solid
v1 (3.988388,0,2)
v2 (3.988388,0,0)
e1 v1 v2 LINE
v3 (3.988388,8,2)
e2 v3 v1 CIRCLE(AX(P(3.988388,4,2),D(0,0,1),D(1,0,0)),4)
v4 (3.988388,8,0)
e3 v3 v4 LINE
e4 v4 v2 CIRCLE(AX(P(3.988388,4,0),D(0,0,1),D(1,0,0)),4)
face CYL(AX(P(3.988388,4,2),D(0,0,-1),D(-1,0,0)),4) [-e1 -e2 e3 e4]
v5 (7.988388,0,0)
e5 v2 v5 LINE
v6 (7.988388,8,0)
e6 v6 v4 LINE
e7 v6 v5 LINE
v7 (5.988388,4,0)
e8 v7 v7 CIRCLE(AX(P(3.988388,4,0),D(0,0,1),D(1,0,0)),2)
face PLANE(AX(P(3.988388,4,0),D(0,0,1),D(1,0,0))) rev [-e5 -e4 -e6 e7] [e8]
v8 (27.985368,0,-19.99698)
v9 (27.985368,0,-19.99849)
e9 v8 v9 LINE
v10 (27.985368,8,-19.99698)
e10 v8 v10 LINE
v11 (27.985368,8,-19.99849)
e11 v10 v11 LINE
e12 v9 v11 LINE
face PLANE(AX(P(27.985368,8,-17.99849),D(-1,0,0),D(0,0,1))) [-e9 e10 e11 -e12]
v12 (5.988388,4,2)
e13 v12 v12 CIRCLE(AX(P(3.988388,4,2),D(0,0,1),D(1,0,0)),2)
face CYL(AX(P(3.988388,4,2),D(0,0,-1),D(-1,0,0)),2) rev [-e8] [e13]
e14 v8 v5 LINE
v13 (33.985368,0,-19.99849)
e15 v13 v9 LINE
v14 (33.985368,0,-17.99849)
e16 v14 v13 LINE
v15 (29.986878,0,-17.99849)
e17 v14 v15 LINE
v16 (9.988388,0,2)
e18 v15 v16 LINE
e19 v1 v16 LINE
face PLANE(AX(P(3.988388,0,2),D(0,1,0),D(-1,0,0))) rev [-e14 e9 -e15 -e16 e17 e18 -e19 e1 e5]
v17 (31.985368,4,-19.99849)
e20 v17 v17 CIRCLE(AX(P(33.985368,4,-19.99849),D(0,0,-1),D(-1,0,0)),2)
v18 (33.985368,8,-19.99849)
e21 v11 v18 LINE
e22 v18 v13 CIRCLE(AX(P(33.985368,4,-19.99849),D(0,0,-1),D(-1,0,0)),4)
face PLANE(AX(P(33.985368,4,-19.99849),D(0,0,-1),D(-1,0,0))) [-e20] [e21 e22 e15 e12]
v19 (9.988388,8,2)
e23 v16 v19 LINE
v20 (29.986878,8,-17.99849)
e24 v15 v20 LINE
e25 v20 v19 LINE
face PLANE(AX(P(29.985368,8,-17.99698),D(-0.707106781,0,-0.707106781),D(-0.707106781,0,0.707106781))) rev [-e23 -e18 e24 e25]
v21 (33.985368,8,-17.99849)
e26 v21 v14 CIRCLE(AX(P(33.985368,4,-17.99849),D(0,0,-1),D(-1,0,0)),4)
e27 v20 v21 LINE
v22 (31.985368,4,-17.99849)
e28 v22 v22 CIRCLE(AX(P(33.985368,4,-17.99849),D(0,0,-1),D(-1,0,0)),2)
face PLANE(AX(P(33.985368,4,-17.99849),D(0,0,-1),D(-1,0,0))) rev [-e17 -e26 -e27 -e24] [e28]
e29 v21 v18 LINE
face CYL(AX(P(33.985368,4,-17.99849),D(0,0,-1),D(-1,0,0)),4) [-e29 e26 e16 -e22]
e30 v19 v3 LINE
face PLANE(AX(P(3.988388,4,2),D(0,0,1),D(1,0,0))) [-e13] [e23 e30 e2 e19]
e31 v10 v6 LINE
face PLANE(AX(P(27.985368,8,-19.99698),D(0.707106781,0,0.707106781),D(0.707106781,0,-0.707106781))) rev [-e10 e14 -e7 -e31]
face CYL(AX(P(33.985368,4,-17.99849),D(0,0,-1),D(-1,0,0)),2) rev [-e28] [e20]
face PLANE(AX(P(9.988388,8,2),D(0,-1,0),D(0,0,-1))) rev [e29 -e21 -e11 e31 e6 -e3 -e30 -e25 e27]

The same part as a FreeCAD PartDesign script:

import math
import FreeCAD as App
import Part
import Sketcher


def add_polygon(sketch, points):
    """Adds a closed chain of lines whose ends are joined by coincident constraints."""
    first, n = sketch.GeometryCount, len(points)
    for a, b in zip(points, points[1:] + points[:1]):
        sketch.addGeometry(Part.LineSegment(App.Vector(*a, 0), App.Vector(*b, 0)), False)
    for i in range(n):
        sketch.addConstraint(Sketcher.Constraint("Coincident", first + i, 2, first + (i + 1) % n, 1))

doc = App.newDocument("Part")
body = doc.addObject("PartDesign::Body", "Body")

sketch1 = body.newObject("Sketcher::SketchObject", "Sketch")
sketch1.AttachmentSupport = (doc.getObject("XY_Plane"), [""])
sketch1.MapMode = "FlatFace"
sketch1.addGeometry([
    Part.LineSegment(App.Vector(4, 0, 0), App.Vector(10, 0, 0)),
    Part.LineSegment(App.Vector(10, 0, 0), App.Vector(10, 8, 0)),
    Part.LineSegment(App.Vector(10, 8, 0), App.Vector(4, 8, 0)),
    Part.ArcOfCircle(Part.Circle(App.Vector(4, 4, 0), App.Vector(0, 0, 1), 4), math.radians(90), math.radians(270)),
    Part.Circle(App.Vector(4, 4, 0), App.Vector(0, 0, 1), 2),
], False)
sketch1.addConstraint([
    Sketcher.Constraint("Coincident", 0, 2, 1, 1),
    Sketcher.Constraint("Coincident", 1, 2, 2, 1),
    Sketcher.Constraint("Tangent", 2, 2, 3, 1),
    Sketcher.Constraint("Tangent", 3, 2, 0, 1),
    Sketcher.Constraint("Horizontal", 0),
    Sketcher.Constraint("Vertical", 1),
    Sketcher.Constraint("Horizontal", 2),
    Sketcher.Constraint("Coincident", 4, 3, 3, 3),
    Sketcher.Constraint("PointOnObject", 0, 2, -1),
    Sketcher.Constraint("Diameter", 4, 4.0),
    Sketcher.Constraint("Radius", 3, 4.0),
    Sketcher.Constraint("DistanceX", 0, 1, 0, 2, 6.0),
    Sketcher.Constraint("DistanceX", -1, 1, 3, 3, 3.988388),
])
pad1 = body.newObject("PartDesign::Pad", "Pad")
pad1.Profile = sketch1
pad1.Length = 2

sketch2 = body.newObject("Sketcher::SketchObject", "Sketch001")
sketch2.AttachmentSupport = (doc.getObject("XZ_Plane"), [""])
sketch2.MapMode = "FlatFace"
add_polygon(sketch2, [(10, 2), (8, 0), (10, 0)])
sketch2.addConstraint([
    Sketcher.Constraint("Horizontal", 1),
    Sketcher.Constraint("Vertical", 2),
    Sketcher.Constraint("PointOnObject", 0, 2, -1),
    Sketcher.Constraint("Equal", 1, 2),
    Sketcher.Constraint("DistanceX", 1, 1, 1, 2, 2.0),
    Sketcher.Constraint("DistanceX", -1, 1, 0, 2, 7.988388),
])
pocket1 = body.newObject("PartDesign::Pocket", "Pocket")
pocket1.Profile = sketch2
pocket1.Type = "ThroughAll"

sketch3 = body.newObject("Sketcher::SketchObject", "Sketch002")
sketch3.Placement = App.Placement(App.Vector(3.994194, 0, -3.994194), App.Rotation(App.Vector(-0.707106781, 0, -0.707106781), App.Vector(0, 0.999999999, 0), App.Vector(0.707106781, 0, -0.707106781), "ZXY"))
add_polygon(sketch3, [(-8.5, 8), (-8.5, 0), (-5.6, 0), (-5.6, 8)])
sketch3.addConstraint([
    Sketcher.Constraint("Vertical", 0),
    Sketcher.Constraint("Horizontal", 1),
    Sketcher.Constraint("Vertical", 2),
    Sketcher.Constraint("Horizontal", 3),
    Sketcher.Constraint("PointOnObject", 0, 2, -1),
    Sketcher.Constraint("DistanceY", 0, 2, 0, 1, 8.0),
    Sketcher.Constraint("DistanceX", 1, 1, 1, 2, 2.828427),
    Sketcher.Constraint("DistanceX", 0, 2, -1, 1, 8.477071),
])
pad2 = body.newObject("PartDesign::Pad", "Pad001")
pad2.Profile = sketch3
pad2.Length = 28.28

sketch4 = body.newObject("Sketcher::SketchObject", "Sketch003")
sketch4.AttachmentSupport = (doc.getObject("XZ_Plane"), [""])
sketch4.MapMode = "FlatFace"
sketch4.AttachmentOffset = App.Placement(App.Vector(0, 0, -8), App.Rotation())
add_polygon(sketch4, [(28, -20), (28, -16), (30, -18)])
sketch4.addConstraint([
    Sketcher.Constraint("Vertical", 0),
    Sketcher.Constraint("Perpendicular", 1, 2),
    Sketcher.Constraint("Equal", 1, 2),
    Sketcher.Constraint("DistanceY", 0, 1, 0, 2, 4.0),
    Sketcher.Constraint("DistanceY", 0, 2, -1, 1, 15.99698),
    Sketcher.Constraint("DistanceX", -1, 1, 0, 2, 27.985368),
])
pocket2 = body.newObject("PartDesign::Pocket", "Pocket001")
pocket2.Profile = sketch4
pocket2.Type = "ThroughAll"
pocket2.Reversed = True

sketch5 = body.newObject("Sketcher::SketchObject", "Sketch004")
sketch5.AttachmentSupport = (doc.getObject("XY_Plane"), [""])
sketch5.MapMode = "FlatFace"
sketch5.AttachmentOffset = App.Placement(App.Vector(0, 0, -19.99849), App.Rotation())
sketch5.addGeometry([
    Part.LineSegment(App.Vector(28, 8, 0), App.Vector(34, 8, 0)),
    Part.ArcOfCircle(Part.Circle(App.Vector(34, 4, 0), App.Vector(0, 0, 1), 4), math.radians(-90), math.radians(90)),
    Part.LineSegment(App.Vector(34, 0, 0), App.Vector(28, 0, 0)),
    Part.LineSegment(App.Vector(28, 0, 0), App.Vector(28, 8, 0)),
    Part.Circle(App.Vector(34, 4, 0), App.Vector(0, 0, 1), 2),
], False)
sketch5.addConstraint([
    Sketcher.Constraint("Tangent", 0, 2, 1, 2),
    Sketcher.Constraint("Tangent", 1, 1, 2, 1),
    Sketcher.Constraint("Coincident", 2, 2, 3, 1),
    Sketcher.Constraint("Coincident", 3, 2, 0, 1),
    Sketcher.Constraint("Horizontal", 0),
    Sketcher.Constraint("Horizontal", 2),
    Sketcher.Constraint("Vertical", 3),
    Sketcher.Constraint("Coincident", 4, 3, 1, 3),
    Sketcher.Constraint("PointOnObject", 1, 1, -1),
    Sketcher.Constraint("Diameter", 4, 4.0),
    Sketcher.Constraint("Radius", 1, 4.0),
    Sketcher.Constraint("DistanceX", 0, 1, 0, 2, 6.0),
    Sketcher.Constraint("DistanceX", -1, 1, 1, 3, 33.985368),
])
pad3 = body.newObject("PartDesign::Pad", "Pad002")
pad3.Profile = sketch5
pad3.Length = 2

sketch6 = body.newObject("Sketcher::SketchObject", "Sketch005")
sketch6.AttachmentSupport = (doc.getObject("XZ_Plane"), [""])
sketch6.MapMode = "FlatFace"
sketch6.AttachmentOffset = App.Placement(App.Vector(0, 0, -8), App.Rotation())
add_polygon(sketch6, [(28, -16), (30, -18), (28, -18)])
sketch6.addConstraint([
    Sketcher.Constraint("Horizontal", 1),
    Sketcher.Constraint("Vertical", 2),
    Sketcher.Constraint("Equal", 1, 2),
    Sketcher.Constraint("DistanceX", 1, 2, 1, 1, 2.00151),
    Sketcher.Constraint("DistanceY", 0, 2, -1, 1, 17.99849),
    Sketcher.Constraint("DistanceX", -1, 1, 0, 2, 29.986878),
])
pad4 = body.newObject("PartDesign::Pad", "Pad003")
pad4.Profile = sketch6
pad4.Length = 8

doc.recompute()
